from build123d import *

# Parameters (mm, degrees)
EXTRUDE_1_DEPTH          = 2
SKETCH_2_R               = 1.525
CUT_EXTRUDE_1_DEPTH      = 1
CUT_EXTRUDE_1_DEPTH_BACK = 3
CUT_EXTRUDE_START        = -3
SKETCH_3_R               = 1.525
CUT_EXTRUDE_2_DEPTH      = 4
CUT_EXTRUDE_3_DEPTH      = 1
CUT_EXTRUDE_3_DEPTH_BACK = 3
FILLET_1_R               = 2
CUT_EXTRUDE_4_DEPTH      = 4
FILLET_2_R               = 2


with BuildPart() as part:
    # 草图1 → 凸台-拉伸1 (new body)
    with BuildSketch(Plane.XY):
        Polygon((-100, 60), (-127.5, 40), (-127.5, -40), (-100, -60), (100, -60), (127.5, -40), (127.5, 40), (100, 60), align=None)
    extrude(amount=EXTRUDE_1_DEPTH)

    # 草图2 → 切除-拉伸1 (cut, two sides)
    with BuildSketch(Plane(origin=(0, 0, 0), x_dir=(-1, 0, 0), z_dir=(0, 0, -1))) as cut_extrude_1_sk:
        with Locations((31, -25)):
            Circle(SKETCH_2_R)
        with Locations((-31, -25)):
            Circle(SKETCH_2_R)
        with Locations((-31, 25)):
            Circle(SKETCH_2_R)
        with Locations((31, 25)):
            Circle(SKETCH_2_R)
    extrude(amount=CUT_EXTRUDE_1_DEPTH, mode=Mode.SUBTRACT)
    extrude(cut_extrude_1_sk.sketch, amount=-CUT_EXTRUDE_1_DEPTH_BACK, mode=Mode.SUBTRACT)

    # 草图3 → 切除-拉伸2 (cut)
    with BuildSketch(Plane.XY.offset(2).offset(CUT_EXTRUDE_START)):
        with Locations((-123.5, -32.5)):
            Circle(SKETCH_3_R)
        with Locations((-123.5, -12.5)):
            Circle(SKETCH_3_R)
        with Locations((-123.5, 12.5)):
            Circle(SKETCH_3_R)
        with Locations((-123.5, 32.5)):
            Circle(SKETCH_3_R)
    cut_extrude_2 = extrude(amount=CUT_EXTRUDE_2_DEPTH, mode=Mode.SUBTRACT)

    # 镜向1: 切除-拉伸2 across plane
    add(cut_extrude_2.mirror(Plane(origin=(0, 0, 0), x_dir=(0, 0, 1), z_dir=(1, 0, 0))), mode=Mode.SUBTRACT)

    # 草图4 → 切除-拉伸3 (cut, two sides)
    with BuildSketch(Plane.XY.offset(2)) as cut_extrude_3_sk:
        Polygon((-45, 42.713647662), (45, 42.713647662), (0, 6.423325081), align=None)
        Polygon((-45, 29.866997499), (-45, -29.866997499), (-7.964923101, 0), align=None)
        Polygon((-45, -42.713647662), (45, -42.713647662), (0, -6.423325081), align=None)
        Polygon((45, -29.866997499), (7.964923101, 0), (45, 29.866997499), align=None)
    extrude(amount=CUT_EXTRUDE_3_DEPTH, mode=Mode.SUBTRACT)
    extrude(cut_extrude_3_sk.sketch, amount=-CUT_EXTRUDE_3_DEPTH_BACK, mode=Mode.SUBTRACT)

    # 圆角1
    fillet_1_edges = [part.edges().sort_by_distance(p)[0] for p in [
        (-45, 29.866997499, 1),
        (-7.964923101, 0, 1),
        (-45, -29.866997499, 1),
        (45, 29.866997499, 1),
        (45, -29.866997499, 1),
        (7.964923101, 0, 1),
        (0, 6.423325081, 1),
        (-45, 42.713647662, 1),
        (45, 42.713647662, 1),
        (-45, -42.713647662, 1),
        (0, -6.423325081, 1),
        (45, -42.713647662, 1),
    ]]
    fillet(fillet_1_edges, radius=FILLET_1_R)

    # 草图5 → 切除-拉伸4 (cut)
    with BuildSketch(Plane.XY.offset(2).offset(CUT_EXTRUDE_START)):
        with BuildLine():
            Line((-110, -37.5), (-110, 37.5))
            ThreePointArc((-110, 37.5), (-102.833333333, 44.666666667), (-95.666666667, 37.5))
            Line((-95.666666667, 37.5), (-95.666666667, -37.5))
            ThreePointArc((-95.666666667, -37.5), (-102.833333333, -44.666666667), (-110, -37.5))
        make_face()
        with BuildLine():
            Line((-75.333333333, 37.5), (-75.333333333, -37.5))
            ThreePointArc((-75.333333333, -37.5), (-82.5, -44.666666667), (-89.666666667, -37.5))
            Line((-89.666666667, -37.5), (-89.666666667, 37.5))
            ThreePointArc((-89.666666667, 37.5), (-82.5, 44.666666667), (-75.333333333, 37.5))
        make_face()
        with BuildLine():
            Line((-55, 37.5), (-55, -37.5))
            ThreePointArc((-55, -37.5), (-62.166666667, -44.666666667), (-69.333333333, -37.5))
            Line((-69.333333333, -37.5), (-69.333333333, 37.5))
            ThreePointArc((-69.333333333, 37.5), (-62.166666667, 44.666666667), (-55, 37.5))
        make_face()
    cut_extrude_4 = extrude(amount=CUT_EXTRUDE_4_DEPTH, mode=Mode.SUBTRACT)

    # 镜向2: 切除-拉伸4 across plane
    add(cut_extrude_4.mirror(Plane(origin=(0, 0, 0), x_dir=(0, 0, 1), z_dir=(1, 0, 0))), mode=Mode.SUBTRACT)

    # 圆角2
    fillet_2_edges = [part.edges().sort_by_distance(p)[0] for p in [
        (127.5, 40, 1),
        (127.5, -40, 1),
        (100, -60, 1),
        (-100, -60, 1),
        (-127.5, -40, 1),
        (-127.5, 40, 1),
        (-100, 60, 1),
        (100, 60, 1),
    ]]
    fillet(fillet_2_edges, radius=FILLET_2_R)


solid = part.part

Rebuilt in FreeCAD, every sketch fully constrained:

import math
import FreeCAD as App
import Part
import Sketcher

V = App.Vector


def edges_at(feature, points):
    """Names of the edges that pass closest to the given points."""
    edges = feature.Shape.Edges
    near = lambda p: min(range(len(edges)), key=lambda i: edges[i].distToShape(Part.Vertex(*p))[0])
    return sorted({f"Edge{near(p) + 1}" for p in points})

doc = App.newDocument("Part")
body = doc.addObject("PartDesign::Body", "Body")

# Sketch on XY plane
sketch1 = body.newObject("Sketcher::SketchObject", "Sketch")
sketch1.AttachmentSupport = (doc.getObject("XY_Plane"), [""])
sketch1.MapMode = "FlatFace"
sketch1.addGeometry(Part.LineSegment(V(-100, 60, 0), V(-128, 40, 0)), False)
sketch1.addGeometry(Part.LineSegment(V(-128, 40, 0), V(-128, -40, 0)), False)
sketch1.addGeometry(Part.LineSegment(V(-128, -40, 0), V(-100, -60, 0)), False)
sketch1.addGeometry(Part.LineSegment(V(-100, -60, 0), V(100, -60, 0)), False)
sketch1.addGeometry(Part.LineSegment(V(100, -60, 0), V(128, -40, 0)), False)
sketch1.addGeometry(Part.LineSegment(V(128, -40, 0), V(128, 40, 0)), False)
sketch1.addGeometry(Part.LineSegment(V(128, 40, 0), V(100, 60, 0)), False)
sketch1.addGeometry(Part.LineSegment(V(100, 60, 0), V(-100, 60, 0)), False)
sketch1.addConstraint(Sketcher.Constraint("Coincident", 0, 2, 1, 1))
sketch1.addConstraint(Sketcher.Constraint("Coincident", 1, 2, 2, 1))
sketch1.addConstraint(Sketcher.Constraint("Coincident", 2, 2, 3, 1))
sketch1.addConstraint(Sketcher.Constraint("Coincident", 3, 2, 4, 1))
sketch1.addConstraint(Sketcher.Constraint("Coincident", 4, 2, 5, 1))
sketch1.addConstraint(Sketcher.Constraint("Coincident", 5, 2, 6, 1))
sketch1.addConstraint(Sketcher.Constraint("Coincident", 6, 2, 7, 1))
sketch1.addConstraint(Sketcher.Constraint("Coincident", 7, 2, 0, 1))
sketch1.addConstraint(Sketcher.Constraint("Vertical", 1))
sketch1.addConstraint(Sketcher.Constraint("Horizontal", 3))
sketch1.addConstraint(Sketcher.Constraint("Vertical", 5))
sketch1.addConstraint(Sketcher.Constraint("Horizontal", 7))
sketch1.addConstraint(Sketcher.Constraint("Symmetric", 0, 2, 4, 2, -1, 1))
sketch1.addConstraint(Sketcher.Constraint("Symmetric", 2, 2, 6, 2, -1, 1))
sketch1.addConstraint(Sketcher.Constraint("Parallel", 0, 4))
sketch1.addConstraint(Sketcher.Constraint("Parallel", 2, 6))
sketch1.addConstraint(Sketcher.Constraint("Horizontal", 1, 2, 4, 2))
sketch1.addConstraint(Sketcher.Constraint("Vertical", 3, 2, 6, 2))
sketch1.addConstraint(Sketcher.Constraint("DistanceX", 3, 1, 3, 2, 200.0))
sketch1.addConstraint(Sketcher.Constraint("DistanceY", 1, 2, 1, 1, 80.0))
sketch1.addConstraint(Sketcher.Constraint("DistanceY", 2, 2, -1, 1, 60.0))
sketch1.addConstraint(Sketcher.Constraint("DistanceX", 1, 2, 4, 2, 255.0))
pad1 = body.newObject("PartDesign::Pad", "Pad")
pad1.Profile = sketch1
pad1.Length = 2

# Sketch on XY plane
sketch2 = body.newObject("Sketcher::SketchObject", "Sketch001")
sketch2.AttachmentSupport = (doc.getObject("XY_Plane"), [""])
sketch2.MapMode = "FlatFace"
sketch2.addGeometry(Part.Circle(V(-31, -25, 0), V(0, 0, 1), 1.5), False)
sketch2.addGeometry(Part.Circle(V(31, -25, 0), V(0, 0, 1), 1.5), False)
sketch2.addGeometry(Part.Circle(V(31, 25, 0), V(0, 0, 1), 1.5), False)
sketch2.addGeometry(Part.Circle(V(-31, 25, 0), V(0, 0, 1), 1.5), False)
sketch2.addConstraint(Sketcher.Constraint("Equal", 0, 1))
sketch2.addConstraint(Sketcher.Constraint("Equal", 1, 2))
sketch2.addConstraint(Sketcher.Constraint("Equal", 2, 3))
sketch2.addConstraint(Sketcher.Constraint("Symmetric", 0, 3, 2, 3, -1, 1))
sketch2.addConstraint(Sketcher.Constraint("Symmetric", 1, 3, 3, 3, -1, 1))
sketch2.addConstraint(Sketcher.Constraint("Symmetric", 0, 3, 1, 3, -2))
sketch2.addConstraint(Sketcher.Constraint("Diameter", 0, 3.05))
sketch2.addConstraint(Sketcher.Constraint("DistanceX", 0, 3, -1, 1, 31.0))
sketch2.addConstraint(Sketcher.Constraint("DistanceY", 0, 3, -1, 1, 25.0))
pocket1 = body.newObject("PartDesign::Pocket", "Pocket")
pocket1.Profile = sketch2
pocket1.Type = "ThroughAll"
pocket1.Midplane = True

# Sketch on XY plane
sketch3 = body.newObject("Sketcher::SketchObject", "Sketch002")
sketch3.AttachmentSupport = (doc.getObject("XY_Plane"), [""])
sketch3.MapMode = "FlatFace"
sketch3.AttachmentOffset = App.Placement(V(0, 0, -1), App.Rotation())
sketch3.addGeometry(Part.Circle(V(-123.5, -32.5, 0), V(0, 0, 1), 1.5), False)
sketch3.addGeometry(Part.Circle(V(-123.5, -12.5, 0), V(0, 0, 1), 1.5), False)
sketch3.addGeometry(Part.Circle(V(-123.5, 12.5, 0), V(0, 0, 1), 1.5), False)
sketch3.addGeometry(Part.Circle(V(-123.5, 32.5, 0), V(0, 0, 1), 1.5), False)
sketch3.addConstraint(Sketcher.Constraint("Equal", 0, 1))
sketch3.addConstraint(Sketcher.Constraint("Equal", 1, 2))
sketch3.addConstraint(Sketcher.Constraint("Equal", 2, 3))
sketch3.addConstraint(Sketcher.Constraint("Symmetric", 1, 3, 2, 3, -1))
sketch3.addConstraint(Sketcher.Constraint("Symmetric", 0, 3, 3, 3, -1))
sketch3.addConstraint(Sketcher.Constraint("Vertical", 0, 3, 1, 3))
sketch3.addConstraint(Sketcher.Constraint("Diameter", 0, 3.05))
sketch3.addConstraint(Sketcher.Constraint("DistanceY", 0, 3, 1, 3, 20.0))
sketch3.addConstraint(Sketcher.Constraint("DistanceY", 1, 3, 2, 3, 25.0))
sketch3.addConstraint(Sketcher.Constraint("DistanceX", 0, 3, -1, 1, 123.5))
pocket2 = body.newObject("PartDesign::Pocket", "Pocket001")
pocket2.Profile = sketch3
pocket2.Length = 4
pocket2.Reversed = True
doc.recompute()

mirrored = body.newObject("PartDesign::Mirrored", "Mirrored")
mirrored.Originals = [pocket2]
mirrored.MirrorPlane = (doc.getObject("YZ_Plane"), [""])
body.Tip = mirrored

# Sketch on XY plane
sketch4 = body.newObject("Sketcher::SketchObject", "Sketch003")
sketch4.AttachmentSupport = (doc.getObject("XY_Plane"), [""])
sketch4.MapMode = "FlatFace"
sketch4.AttachmentOffset = App.Placement(V(0, 0, 2), App.Rotation())
sketch4.addGeometry(Part.LineSegment(V(45, 43, 0), V(-45, 43, 0)), False)
sketch4.addGeometry(Part.LineSegment(V(-45, 43, 0), V(0, 6, 0)), False)
sketch4.addGeometry(Part.LineSegment(V(0, 6, 0), V(45, 43, 0)), False)
sketch4.addGeometry(Part.LineSegment(V(-45, 30, 0), V(-45, -30, 0)), False)
sketch4.addGeometry(Part.LineSegment(V(-45, -30, 0), V(-8, 0, 0)), False)
sketch4.addGeometry(Part.LineSegment(V(-8, 0, 0), V(-45, 30, 0)), False)
sketch4.addGeometry(Part.LineSegment(V(-45, -43, 0), V(45, -43, 0)), False)
sketch4.addGeometry(Part.LineSegment(V(45, -43, 0), V(0, -6, 0)), False)
sketch4.addGeometry(Part.LineSegment(V(0, -6, 0), V(-45, -43, 0)), False)
sketch4.addGeometry(Part.LineSegment(V(8, 0, 0), V(45, -30, 0)), False)
sketch4.addGeometry(Part.LineSegment(V(45, -30, 0), V(45, 30, 0)), False)
sketch4.addGeometry(Part.LineSegment(V(45, 30, 0), V(8, 0, 0)), False)
sketch4.addConstraint(Sketcher.Constraint("Coincident", 0, 2, 1, 1))
sketch4.addConstraint(Sketcher.Constraint("Coincident", 1, 2, 2, 1))
sketch4.addConstraint(Sketcher.Constraint("Coincident", 2, 2, 0, 1))
sketch4.addConstraint(Sketcher.Constraint("Coincident", 3, 2, 4, 1))
sketch4.addConstraint(Sketcher.Constraint("Coincident", 4, 2, 5, 1))
sketch4.addConstraint(Sketcher.Constraint("Coincident", 5, 2, 3, 1))
sketch4.addConstraint(Sketcher.Constraint("Coincident", 6, 2, 7, 1))
sketch4.addConstraint(Sketcher.Constraint("Coincident", 7, 2, 8, 1))
sketch4.addConstraint(Sketcher.Constraint("Coincident", 8, 2, 6, 1))
sketch4.addConstraint(Sketcher.Constraint("Coincident", 9, 2, 10, 1))
sketch4.addConstraint(Sketcher.Constraint("Coincident", 10, 2, 11, 1))
sketch4.addConstraint(Sketcher.Constraint("Coincident", 11, 2, 9, 1))
sketch4.addConstraint(Sketcher.Constraint("Horizontal", 0))
sketch4.addConstraint(Sketcher.Constraint("Vertical", 3))
sketch4.addConstraint(Sketcher.Constraint("Horizontal", 6))
sketch4.addConstraint(Sketcher.Constraint("Vertical", 10))
sketch4.addConstraint(Sketcher.Constraint("Symmetric", 0, 2, 6, 2, -1, 1))
sketch4.addConstraint(Sketcher.Constraint("Symmetric", 1, 2, 7, 2, -1, 1))
sketch4.addConstraint(Sketcher.Constraint("Symmetric", 5, 2, 9, 2, -1, 1))
sketch4.addConstraint(Sketcher.Constraint("Symmetric", 4, 2, 11, 2, -1, 1))
sketch4.addConstraint(Sketcher.Constraint("PointOnObject", 1, 2, -2))
sketch4.addConstraint(Sketcher.Constraint("PointOnObject", 4, 2, -1))
sketch4.addConstraint(Sketcher.Constraint("Parallel", 2, 4))
sketch4.addConstraint(Sketcher.Constraint("Parallel", 1, 5))
sketch4.addConstraint(Sketcher.Constraint("Parallel", 4, 8))
sketch4.addConstraint(Sketcher.Constraint("Parallel", 8, 11))
sketch4.addConstraint(Sketcher.Constraint("Horizontal", 3, 2, 9, 2))
sketch4.addConstraint(Sketcher.Constraint("Vertical", 0, 2, 3, 2))
sketch4.addConstraint(Sketcher.Constraint("DistanceX", 0, 2, 0, 1, 90.0))
sketch4.addConstraint(Sketcher.Constraint("DistanceY", 3, 2, 3, 1, 59.733995))
sketch4.addConstraint(Sketcher.Constraint("DistanceY", 5, 2, 0, 2, 12.84665))
sketch4.addConstraint(Sketcher.Constraint("DistanceY", 7, 2, 1, 2, 12.84665))
pocket3 = body.newObject("PartDesign::Pocket", "Pocket002")
pocket3.Profile = sketch4
pocket3.Type = "ThroughAll"
pocket3.Midplane = True
doc.recompute()

fillet = body.newObject("PartDesign::Fillet", "Fillet")
fillet.Base = (pocket3, edges_at(pocket3, [
    (-45, 29.867, 1),
    (-7.965, 0, 1),
    (-45, -29.867, 1),
    (45, 29.867, 1),
    (45, -29.867, 1),
    (7.965, 0, 1),
    (0, 6.423, 1),
    (-45, 42.714, 1),
    (45, 42.714, 1),
    (-45, -42.714, 1),
    (0, -6.423, 1),
    (45, -42.714, 1),
]))
fillet.Radius = 2

# Sketch on XY plane
sketch5 = body.newObject("Sketcher::SketchObject", "Sketch004")
sketch5.AttachmentSupport = (doc.getObject("XY_Plane"), [""])
sketch5.MapMode = "FlatFace"
sketch5.AttachmentOffset = App.Placement(V(0, 0, -1), App.Rotation())
sketch5.addGeometry(Part.LineSegment(V(-110, 38, 0), V(-110, -38, 0)), False)
sketch5.addGeometry(Part.ArcOfCircle(Part.Circle(V(-103, -38, 0), V(0, 0, 1), 7), math.radians(180), math.radians(360)), False)
sketch5.addGeometry(Part.LineSegment(V(-96, -38, 0), V(-96, 38, 0)), False)
sketch5.addGeometry(Part.ArcOfCircle(Part.Circle(V(-103, 38, 0), V(0, 0, 1), 7), math.radians(0), math.radians(180)), False)
sketch5.addGeometry(Part.LineSegment(V(-75, -38, 0), V(-75, 38, 0)), False)
sketch5.addGeometry(Part.ArcOfCircle(Part.Circle(V(-82, 38, 0), V(0, 0, 1), 7), math.radians(0), math.radians(180)), False)
sketch5.addGeometry(Part.LineSegment(V(-90, 38, 0), V(-90, -38, 0)), False)
sketch5.addGeometry(Part.ArcOfCircle(Part.Circle(V(-82, -38, 0), V(0, 0, 1), 7), math.radians(180), math.radians(360)), False)
sketch5.addGeometry(Part.LineSegment(V(-55, -38, 0), V(-55, 38, 0)), False)
sketch5.addGeometry(Part.ArcOfCircle(Part.Circle(V(-62, 38, 0), V(0, 0, 1), 7), math.radians(0), math.radians(180)), False)
sketch5.addGeometry(Part.LineSegment(V(-69, 38, 0), V(-69, -38, 0)), False)
sketch5.addGeometry(Part.ArcOfCircle(Part.Circle(V(-62, -38, 0), V(0, 0, 1), 7), math.radians(180), math.radians(360)), False)
sketch5.addConstraint(Sketcher.Constraint("Tangent", 0, 2, 1, 1))
sketch5.addConstraint(Sketcher.Constraint("Tangent", 1, 2, 2, 1))
sketch5.addConstraint(Sketcher.Constraint("Tangent", 2, 2, 3, 1))
sketch5.addConstraint(Sketcher.Constraint("Tangent", 3, 2, 0, 1))
sketch5.addConstraint(Sketcher.Constraint("Tangent", 4, 2, 5, 1))
sketch5.addConstraint(Sketcher.Constraint("Tangent", 5, 2, 6, 1))
sketch5.addConstraint(Sketcher.Constraint("Tangent", 6, 2, 7, 1))
sketch5.addConstraint(Sketcher.Constraint("Tangent", 7, 2, 4, 1))
sketch5.addConstraint(Sketcher.Constraint("Tangent", 8, 2, 9, 1))
sketch5.addConstraint(Sketcher.Constraint("Tangent", 9, 2, 10, 1))
sketch5.addConstraint(Sketcher.Constraint("Tangent", 10, 2, 11, 1))
sketch5.addConstraint(Sketcher.Constraint("Tangent", 11, 2, 8, 1))
sketch5.addConstraint(Sketcher.Constraint("Vertical", 0))
sketch5.addConstraint(Sketcher.Constraint("Vertical", 2))
sketch5.addConstraint(Sketcher.Constraint("Vertical", 4))
sketch5.addConstraint(Sketcher.Constraint("Vertical", 6))
sketch5.addConstraint(Sketcher.Constraint("Vertical", 8))
sketch5.addConstraint(Sketcher.Constraint("Vertical", 10))
sketch5.addConstraint(Sketcher.Constraint("Equal", 3, 5))
sketch5.addConstraint(Sketcher.Constraint("Equal", 7, 9))
sketch5.addConstraint(Sketcher.Constraint("Horizontal", 3, 3, 5, 3))
sketch5.addConstraint(Sketcher.Constraint("Horizontal", 1, 3, 7, 3))
sketch5.addConstraint(Sketcher.Constraint("Horizontal", 5, 3, 9, 3))
sketch5.addConstraint(Sketcher.Constraint("Horizontal", 7, 3, 11, 3))
sketch5.addConstraint(Sketcher.Constraint("DistanceY", 0, 2, 0, 1, 75.0))
sketch5.addConstraint(Sketcher.Constraint("DistanceX", 0, 2, -1, 1, 110.0))
sketch5.addConstraint(Sketcher.Constraint("DistanceX", 8, 2, -1, 1, 55.0))
sketch5.addConstraint(Sketcher.Constraint("DistanceX", 2, 2, 5, 2, 6.0))
sketch5.addConstraint(Sketcher.Constraint("DistanceX", 4, 2, 9, 2, 6.0))
sketch5.addConstraint(Sketcher.Constraint("DistanceY", 1, 3, -1, 1, 37.5))
pocket4 = body.newObject("PartDesign::Pocket", "Pocket003")
pocket4.Profile = sketch5
pocket4.Length = 4
pocket4.Reversed = True
doc.recompute()

mirrored2 = body.newObject("PartDesign::Mirrored", "Mirrored001")
mirrored2.Originals = [pocket4]
mirrored2.MirrorPlane = (doc.getObject("YZ_Plane"), [""])
body.Tip = mirrored2
doc.recompute()

fillet2 = body.newObject("PartDesign::Fillet", "Fillet001")
fillet2.Base = (mirrored2, edges_at(mirrored2, [
    (127.5, 40, 1),
    (127.5, -40, 1),
    (100, -60, 1),
    (-100, -60, 1),
    (-127.5, -40, 1),
    (-127.5, 40, 1),
    (-100, 60, 1),
    (100, 60, 1),
]))
fillet2.Radius = 2

doc.recompute()
